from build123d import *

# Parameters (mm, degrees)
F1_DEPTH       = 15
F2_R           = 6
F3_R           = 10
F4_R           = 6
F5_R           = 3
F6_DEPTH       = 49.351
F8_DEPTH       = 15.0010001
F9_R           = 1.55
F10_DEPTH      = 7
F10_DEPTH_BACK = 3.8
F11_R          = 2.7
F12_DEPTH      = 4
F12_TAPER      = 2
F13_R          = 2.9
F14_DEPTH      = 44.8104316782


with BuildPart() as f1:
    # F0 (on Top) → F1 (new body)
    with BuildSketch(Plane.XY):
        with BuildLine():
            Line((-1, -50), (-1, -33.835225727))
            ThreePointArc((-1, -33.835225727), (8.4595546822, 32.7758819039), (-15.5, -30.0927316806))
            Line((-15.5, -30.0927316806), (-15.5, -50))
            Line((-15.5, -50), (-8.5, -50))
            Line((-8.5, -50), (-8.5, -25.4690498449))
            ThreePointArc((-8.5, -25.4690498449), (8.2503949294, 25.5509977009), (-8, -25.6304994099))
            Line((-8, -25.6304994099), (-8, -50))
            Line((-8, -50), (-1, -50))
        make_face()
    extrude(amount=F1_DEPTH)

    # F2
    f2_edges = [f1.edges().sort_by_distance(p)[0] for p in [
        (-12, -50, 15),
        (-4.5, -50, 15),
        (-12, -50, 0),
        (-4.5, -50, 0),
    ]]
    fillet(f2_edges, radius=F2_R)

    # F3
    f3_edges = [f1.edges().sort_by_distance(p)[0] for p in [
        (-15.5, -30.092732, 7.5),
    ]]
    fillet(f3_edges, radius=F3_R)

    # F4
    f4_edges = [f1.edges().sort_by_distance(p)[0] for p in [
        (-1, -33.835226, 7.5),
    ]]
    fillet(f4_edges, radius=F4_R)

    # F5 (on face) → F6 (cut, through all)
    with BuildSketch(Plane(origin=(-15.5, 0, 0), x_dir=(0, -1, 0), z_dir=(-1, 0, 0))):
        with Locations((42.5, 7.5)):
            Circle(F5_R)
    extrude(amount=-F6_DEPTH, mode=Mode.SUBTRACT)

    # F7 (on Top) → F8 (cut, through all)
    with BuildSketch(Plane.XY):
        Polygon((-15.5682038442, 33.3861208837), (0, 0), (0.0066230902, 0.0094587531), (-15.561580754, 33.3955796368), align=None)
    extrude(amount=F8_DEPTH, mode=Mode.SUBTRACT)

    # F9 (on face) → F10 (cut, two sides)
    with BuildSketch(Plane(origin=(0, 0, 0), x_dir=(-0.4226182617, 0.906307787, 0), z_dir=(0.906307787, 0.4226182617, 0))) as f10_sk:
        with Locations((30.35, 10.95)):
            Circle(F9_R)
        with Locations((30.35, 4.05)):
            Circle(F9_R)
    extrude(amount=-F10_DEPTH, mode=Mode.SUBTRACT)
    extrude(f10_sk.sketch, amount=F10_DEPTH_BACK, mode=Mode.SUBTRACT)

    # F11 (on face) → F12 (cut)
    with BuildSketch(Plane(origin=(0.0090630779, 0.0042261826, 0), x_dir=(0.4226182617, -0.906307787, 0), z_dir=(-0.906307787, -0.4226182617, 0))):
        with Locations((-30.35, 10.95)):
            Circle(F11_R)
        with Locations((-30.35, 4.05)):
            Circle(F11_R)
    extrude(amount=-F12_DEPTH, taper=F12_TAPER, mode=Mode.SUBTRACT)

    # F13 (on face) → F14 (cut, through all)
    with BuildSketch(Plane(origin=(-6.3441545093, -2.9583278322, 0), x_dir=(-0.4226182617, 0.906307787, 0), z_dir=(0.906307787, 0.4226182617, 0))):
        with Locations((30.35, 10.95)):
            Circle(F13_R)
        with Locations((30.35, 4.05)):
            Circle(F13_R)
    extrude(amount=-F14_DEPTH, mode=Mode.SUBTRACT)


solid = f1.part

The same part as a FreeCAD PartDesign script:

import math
import FreeCAD as App
import Part
import Sketcher
Q = App.Units.Quantity


def edges_at(feature, points):
    """Names of the edges that pass closest to the given points."""
    edges = feature.Shape.Edges
    near = lambda p: min(range(len(edges)), key=lambda i: edges[i].distToShape(Part.Vertex(*p))[0])
    return sorted({f"Edge{near(p) + 1}" for p in points})

doc = App.newDocument("Part")
body = doc.addObject("PartDesign::Body", "Body")
body.AllowCompound = True

# Sketch on XY plane
sketch1 = doc.addObject("Sketcher::SketchObject", "Sketch")
body.addObject(sketch1)
sketch1.AttachmentSupport = (doc.XY_Plane, [""])
sketch1.MapMode = "FlatFace"
sketch1.addGeometry([
    Part.LineSegment(App.Vector(-1, -50, 0), App.Vector(-1, -33.8, 0)),  # 0
    Part.ArcOfCircle(Part.Circle(App.Vector(0, 0, 0), App.Vector(0, 0, 1), 33.9), math.radians(-92), math.radians(243)),  # 1
    Part.LineSegment(App.Vector(-15.5, -30.1, 0), App.Vector(-15.5, -50, 0)),  # 2
    Part.LineSegment(App.Vector(-15.5, -50, 0), App.Vector(-8.5, -50, 0)),  # 3
    Part.LineSegment(App.Vector(-8.5, -50, 0), App.Vector(-8.5, -25.5, 0)),  # 4
    Part.ArcOfCircle(Part.Circle(App.Vector(0, 0, 0), App.Vector(0, 0, 1), 26.9), math.radians(-107), math.radians(252)),  # 5
    Part.LineSegment(App.Vector(-8, -25.6, 0), App.Vector(-8, -50, 0)),  # 6
    Part.LineSegment(App.Vector(-8, -50, 0), App.Vector(-1, -50, 0)),  # 7
], False)
sketch1.addConstraint([
    Sketcher.Constraint("Coincident", 0, 2, 1, 1),
    Sketcher.Constraint("Coincident", 1, 2, 2, 1),
    Sketcher.Constraint("Coincident", 2, 2, 3, 1),
    Sketcher.Constraint("Coincident", 3, 2, 4, 1),
    Sketcher.Constraint("Coincident", 4, 2, 5, 2),
    Sketcher.Constraint("Coincident", 5, 1, 6, 1),
    Sketcher.Constraint("Coincident", 6, 2, 7, 1),
    Sketcher.Constraint("Coincident", 7, 2, 0, 1),
    Sketcher.Constraint("Vertical", 0),
    Sketcher.Constraint("Vertical", 2),
    Sketcher.Constraint("Horizontal", 3),
    Sketcher.Constraint("Vertical", 4),
    Sketcher.Constraint("Vertical", 6),
    Sketcher.Constraint("Horizontal", 7),
    Sketcher.Constraint("Coincident", 1, 3, -1, 1),
    Sketcher.Constraint("Coincident", 5, 3, -1, 1),
    Sketcher.Constraint("Horizontal", 3, 2, 6, 2),
    Sketcher.Constraint("Equal", 3, 7),
    Sketcher.Constraint("DistanceX", 3, 1, 3, 2, Q("7 mm")),
    Sketcher.Constraint("Radius", 1, Q("33.85 mm")),
    Sketcher.Constraint("Radius", 5, Q("26.85 mm")),
    Sketcher.Constraint("DistanceX", 0, 2, -1, 1, Q("1 mm")),
    Sketcher.Constraint("DistanceY", 2, 2, -1, 1, Q("50 mm")),
    Sketcher.Constraint("DistanceX", 1, 2, -1, 1, Q("15.5 mm")),
])
pad1 = doc.addObject("PartDesign::Pad", "Pad")
body.addObject(pad1)
pad1.Profile = sketch1
pad1.Length = 15
doc.recompute()

fillet = doc.addObject("PartDesign::Fillet", "Fillet")
body.addObject(fillet)
fillet.Base = (pad1, edges_at(pad1, [
    (-12, -50, 15),
    (-4.5, -50, 15),
    (-12, -50, 0),
    (-4.5, -50, 0),
]))
fillet.Radius = 6
doc.recompute()

fillet2 = doc.addObject("PartDesign::Fillet", "Fillet001")
body.addObject(fillet2)
fillet2.Base = (fillet, edges_at(fillet, [(-15.5, -30.093, 7.5)]))
fillet2.Radius = 10
doc.recompute()

fillet3 = doc.addObject("PartDesign::Fillet", "Fillet002")
body.addObject(fillet3)
fillet3.Base = (fillet2, edges_at(fillet2, [(-1, -33.835, 7.5)]))
fillet3.Radius = 6

# Sketch on YZ plane
sketch2 = doc.addObject("Sketcher::SketchObject", "Sketch001")
body.addObject(sketch2)
sketch2.AttachmentSupport = (doc.YZ_Plane, [""])
sketch2.MapMode = "FlatFace"
sketch2.AttachmentOffset = App.Placement(App.Vector(0, 0, -15.5), App.Rotation())
sketch2.addGeometry(Part.Circle(App.Vector(-42.5, 7.5, 0), App.Vector(0, 0, 1), 3), False)
sketch2.addConstraint([
    Sketcher.Constraint("Diameter", 0, Q("6 mm")),
    Sketcher.Constraint("DistanceX", 0, 3, -1, 1, Q("42.5 mm")),
    Sketcher.Constraint("DistanceY", -1, 1, 0, 3, Q("7.5 mm")),
])
pocket1 = doc.addObject("PartDesign::Pocket", "Pocket")
body.addObject(pocket1)
pocket1.Profile = sketch2
pocket1.Type = "ThroughAll"
pocket1.Reversed = True

# Sketch on XY plane
sketch3 = doc.addObject("Sketcher::SketchObject", "Sketch002")
body.addObject(sketch3)
sketch3.AttachmentSupport = (doc.XY_Plane, [""])
sketch3.MapMode = "FlatFace"
sketch3.addGeometry([
    Part.LineSegment(App.Vector(-15.568, 33.386, 0), App.Vector(0, 0, 0)),
    Part.LineSegment(App.Vector(0, 0, 0), App.Vector(0.007, 0.009, 0)),
    Part.LineSegment(App.Vector(0.007, 0.009, 0), App.Vector(-15.562, 33.396, 0)),
    Part.LineSegment(App.Vector(-15.562, 33.396, 0), App.Vector(-15.568, 33.386, 0)),
], False)
sketch3.addConstraint([
    Sketcher.Constraint("Coincident", 0, 2, 1, 1),
    Sketcher.Constraint("Coincident", 1, 2, 2, 1),
    Sketcher.Constraint("Coincident", 2, 2, 3, 1),
    Sketcher.Constraint("Coincident", 3, 2, 0, 1),
    Sketcher.Constraint("Coincident", 0, 2, -1, 1),
    Sketcher.Constraint("Parallel", 0, 2),
    Sketcher.Constraint("Parallel", 1, 3),
    Sketcher.Constraint("Angle", 0, Q("-65 deg")),
    Sketcher.Constraint("Angle", 1, Q("55.000001 deg")),
    Sketcher.Constraint("Distance", 0, Q("36.837509 mm")),
    Sketcher.Constraint("DistanceY", -1, 1, 1, 2, Q("0.009459 mm")),
])
pocket2 = doc.addObject("PartDesign::Pocket", "Pocket001")
body.addObject(pocket2)
pocket2.Profile = sketch3
pocket2.Type = "ThroughAll"
pocket2.Reversed = True

# Sketch on an angled plane
sketch4 = doc.addObject("Sketcher::SketchObject", "Sketch003")
body.addObject(sketch4)
sketch4.Placement = App.Placement(App.Vector(0, 0, 0), App.Rotation(App.Vector(-0.422618262, 0.906307787, 0), App.Vector(0, 0, 1), App.Vector(0.906307787, 0.422618262, 0), "ZXY"))
sketch4.addGeometry([
    Part.Circle(App.Vector(30.4, 11, 0), App.Vector(0, 0, 1), 1.6),
    Part.Circle(App.Vector(30.4, 4.1, 0), App.Vector(0, 0, 1), 1.6),
], False)
sketch4.addConstraint([
    Sketcher.Constraint("Equal", 0, 1),
    Sketcher.Constraint("Vertical", 0, 3, 1, 3),
    Sketcher.Constraint("Diameter", 0, Q("3.1 mm")),
    Sketcher.Constraint("DistanceY", 1, 3, 0, 3, Q("6.9 mm")),
    Sketcher.Constraint("DistanceX", -1, 1, 0, 3, Q("30.35 mm")),
    Sketcher.Constraint("DistanceY", -1, 1, 0, 3, Q("10.95 mm")),
])
pocket3 = doc.addObject("PartDesign::Pocket", "Pocket002")
body.addObject(pocket3)
pocket3.Profile = sketch4
pocket3.Type = "TwoLengths"
pocket3.Length = 7
pocket3.Length2 = 3.8

# Sketch on an angled plane
sketch5 = doc.addObject("Sketcher::SketchObject", "Sketch004")
body.addObject(sketch5)
sketch5.Placement = App.Placement(App.Vector(0.009063, 0.004226, 0), App.Rotation(App.Vector(0.422618262, -0.906307787, 0), App.Vector(0, 0, 1), App.Vector(-0.906307787, -0.422618262, 0), "ZXY"))
sketch5.addGeometry([
    Part.Circle(App.Vector(-30.4, 11, 0), App.Vector(0, 0, 1), 2.7),
    Part.Circle(App.Vector(-30.4, 4.1, 0), App.Vector(0, 0, 1), 2.7),
], False)
sketch5.addConstraint([
    Sketcher.Constraint("Equal", 0, 1),
    Sketcher.Constraint("Vertical", 0, 3, 1, 3),
    Sketcher.Constraint("Diameter", 0, Q("5.4 mm")),
    Sketcher.Constraint("DistanceY", 1, 3, 0, 3, Q("6.9 mm")),
    Sketcher.Constraint("DistanceX", 0, 3, -1, 1, Q("30.35 mm")),
    Sketcher.Constraint("DistanceY", -1, 1, 0, 3, Q("10.95 mm")),
])
pocket4 = doc.addObject("PartDesign::Pocket", "Pocket003")
body.addObject(pocket4)
pocket4.Profile = sketch5
pocket4.Length = 4
pocket4.TaperAngle = -2

# Sketch on an angled plane
sketch6 = doc.addObject("Sketcher::SketchObject", "Sketch005")
body.addObject(sketch6)
sketch6.Placement = App.Placement(App.Vector(-6.344155, -2.958328, 0), App.Rotation(App.Vector(-0.422618262, 0.906307787, 0), App.Vector(0, 0, 1), App.Vector(0.906307787, 0.422618262, 0), "ZXY"))
sketch6.addGeometry([
    Part.Circle(App.Vector(30.4, 11, 0), App.Vector(0, 0, 1), 2.9),
    Part.Circle(App.Vector(30.4, 4.1, 0), App.Vector(0, 0, 1), 2.9),
], False)
sketch6.addConstraint([
    Sketcher.Constraint("Equal", 0, 1),
    Sketcher.Constraint("Vertical", 0, 3, 1, 3),
    Sketcher.Constraint("Diameter", 0, Q("5.8 mm")),
    Sketcher.Constraint("DistanceY", 1, 3, 0, 3, Q("6.9 mm")),
    Sketcher.Constraint("DistanceX", -1, 1, 0, 3, Q("30.35 mm")),
    Sketcher.Constraint("DistanceY", -1, 1, 0, 3, Q("10.95 mm")),
])
pocket5 = doc.addObject("PartDesign::Pocket", "Pocket004")
body.addObject(pocket5)
pocket5.Profile = sketch6
pocket5.Type = "ThroughAll"

doc.recompute()
